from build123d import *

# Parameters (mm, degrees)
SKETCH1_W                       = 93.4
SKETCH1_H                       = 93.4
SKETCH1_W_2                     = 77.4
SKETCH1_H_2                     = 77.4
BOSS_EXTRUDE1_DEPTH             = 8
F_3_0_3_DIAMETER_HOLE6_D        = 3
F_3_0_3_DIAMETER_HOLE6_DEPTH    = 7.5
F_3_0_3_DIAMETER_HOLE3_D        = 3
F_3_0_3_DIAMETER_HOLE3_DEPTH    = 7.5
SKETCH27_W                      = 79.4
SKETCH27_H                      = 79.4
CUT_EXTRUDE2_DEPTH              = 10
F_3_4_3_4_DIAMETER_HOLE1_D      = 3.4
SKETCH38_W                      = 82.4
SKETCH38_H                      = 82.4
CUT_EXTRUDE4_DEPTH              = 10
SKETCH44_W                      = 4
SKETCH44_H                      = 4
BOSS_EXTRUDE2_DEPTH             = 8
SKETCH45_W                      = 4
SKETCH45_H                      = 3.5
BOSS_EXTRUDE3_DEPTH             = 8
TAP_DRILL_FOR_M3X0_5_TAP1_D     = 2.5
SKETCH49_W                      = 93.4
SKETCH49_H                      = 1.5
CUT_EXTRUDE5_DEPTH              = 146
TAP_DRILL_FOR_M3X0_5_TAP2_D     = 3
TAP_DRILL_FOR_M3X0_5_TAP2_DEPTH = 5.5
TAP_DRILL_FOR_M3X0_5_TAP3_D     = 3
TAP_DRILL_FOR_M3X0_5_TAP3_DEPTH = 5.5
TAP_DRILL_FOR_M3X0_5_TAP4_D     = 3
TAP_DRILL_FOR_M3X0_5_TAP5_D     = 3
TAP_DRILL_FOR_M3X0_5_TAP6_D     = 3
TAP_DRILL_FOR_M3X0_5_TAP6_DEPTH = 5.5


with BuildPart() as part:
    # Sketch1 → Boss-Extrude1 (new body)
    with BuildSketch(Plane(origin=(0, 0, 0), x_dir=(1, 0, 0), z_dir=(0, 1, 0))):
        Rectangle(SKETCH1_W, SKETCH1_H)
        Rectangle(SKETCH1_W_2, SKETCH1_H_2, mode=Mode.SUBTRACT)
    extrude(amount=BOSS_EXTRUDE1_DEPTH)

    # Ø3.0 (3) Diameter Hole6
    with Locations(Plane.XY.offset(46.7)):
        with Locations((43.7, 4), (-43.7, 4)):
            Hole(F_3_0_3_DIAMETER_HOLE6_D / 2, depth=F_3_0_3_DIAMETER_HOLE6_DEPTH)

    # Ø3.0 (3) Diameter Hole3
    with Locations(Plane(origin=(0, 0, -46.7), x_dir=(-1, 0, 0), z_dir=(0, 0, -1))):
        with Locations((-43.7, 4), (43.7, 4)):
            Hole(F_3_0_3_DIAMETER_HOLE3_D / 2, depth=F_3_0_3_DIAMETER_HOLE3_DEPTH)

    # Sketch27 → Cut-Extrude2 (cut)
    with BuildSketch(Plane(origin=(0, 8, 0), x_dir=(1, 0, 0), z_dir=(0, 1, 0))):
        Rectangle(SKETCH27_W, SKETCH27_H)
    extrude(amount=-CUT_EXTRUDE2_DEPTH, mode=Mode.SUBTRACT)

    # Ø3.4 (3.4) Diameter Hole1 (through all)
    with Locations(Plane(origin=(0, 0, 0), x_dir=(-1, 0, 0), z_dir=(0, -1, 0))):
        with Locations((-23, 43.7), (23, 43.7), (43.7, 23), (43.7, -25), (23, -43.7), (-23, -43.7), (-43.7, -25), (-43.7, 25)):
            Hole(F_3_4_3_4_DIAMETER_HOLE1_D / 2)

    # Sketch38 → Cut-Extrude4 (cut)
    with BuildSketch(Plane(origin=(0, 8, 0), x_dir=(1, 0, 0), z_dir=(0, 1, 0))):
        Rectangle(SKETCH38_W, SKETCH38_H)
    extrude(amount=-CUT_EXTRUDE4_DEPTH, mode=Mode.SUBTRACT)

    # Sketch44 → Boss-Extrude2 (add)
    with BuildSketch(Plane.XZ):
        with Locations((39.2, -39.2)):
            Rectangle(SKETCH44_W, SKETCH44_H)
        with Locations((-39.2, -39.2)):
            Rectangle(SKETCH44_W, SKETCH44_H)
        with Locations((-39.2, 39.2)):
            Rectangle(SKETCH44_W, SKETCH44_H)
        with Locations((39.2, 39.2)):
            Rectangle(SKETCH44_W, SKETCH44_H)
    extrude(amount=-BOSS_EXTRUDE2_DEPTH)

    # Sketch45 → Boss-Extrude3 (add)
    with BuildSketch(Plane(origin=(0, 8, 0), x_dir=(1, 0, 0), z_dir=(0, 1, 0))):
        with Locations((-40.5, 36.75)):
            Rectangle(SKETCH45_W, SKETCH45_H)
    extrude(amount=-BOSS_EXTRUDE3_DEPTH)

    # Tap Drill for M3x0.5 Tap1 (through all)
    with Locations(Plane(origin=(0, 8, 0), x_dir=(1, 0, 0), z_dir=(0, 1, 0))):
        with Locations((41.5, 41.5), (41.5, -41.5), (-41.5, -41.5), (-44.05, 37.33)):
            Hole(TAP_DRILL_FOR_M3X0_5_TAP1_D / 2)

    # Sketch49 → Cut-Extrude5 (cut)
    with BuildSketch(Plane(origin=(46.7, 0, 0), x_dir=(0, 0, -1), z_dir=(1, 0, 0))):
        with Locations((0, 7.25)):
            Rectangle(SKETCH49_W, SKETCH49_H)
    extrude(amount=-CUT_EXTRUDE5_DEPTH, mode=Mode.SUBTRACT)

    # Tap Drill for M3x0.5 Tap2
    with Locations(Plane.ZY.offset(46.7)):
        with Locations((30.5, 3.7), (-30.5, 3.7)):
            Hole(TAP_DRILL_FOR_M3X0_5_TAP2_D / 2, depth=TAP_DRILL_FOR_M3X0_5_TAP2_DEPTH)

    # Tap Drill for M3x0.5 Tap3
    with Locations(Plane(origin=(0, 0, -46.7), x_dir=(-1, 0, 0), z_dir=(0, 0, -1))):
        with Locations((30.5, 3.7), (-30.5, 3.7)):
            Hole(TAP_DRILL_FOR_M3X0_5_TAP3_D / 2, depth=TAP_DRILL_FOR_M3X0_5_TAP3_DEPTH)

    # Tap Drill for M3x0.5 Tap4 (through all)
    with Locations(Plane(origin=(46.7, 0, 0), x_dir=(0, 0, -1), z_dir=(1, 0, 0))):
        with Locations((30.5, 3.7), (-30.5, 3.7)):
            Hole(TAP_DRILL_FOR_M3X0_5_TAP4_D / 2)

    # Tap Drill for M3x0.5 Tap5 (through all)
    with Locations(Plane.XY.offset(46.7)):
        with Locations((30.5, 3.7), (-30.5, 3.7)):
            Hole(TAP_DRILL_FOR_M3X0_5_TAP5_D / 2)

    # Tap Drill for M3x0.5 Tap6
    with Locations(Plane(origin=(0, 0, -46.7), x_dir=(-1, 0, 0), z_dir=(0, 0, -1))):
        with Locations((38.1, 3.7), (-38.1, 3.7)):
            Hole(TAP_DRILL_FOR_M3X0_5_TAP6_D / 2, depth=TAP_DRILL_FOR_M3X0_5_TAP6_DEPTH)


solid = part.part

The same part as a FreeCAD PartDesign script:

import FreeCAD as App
import Part
import Sketcher


def add_polygon(sketch, points):
    """Adds a closed chain of lines whose ends are joined by coincident constraints."""
    first, n = sketch.GeometryCount, len(points)
    for a, b in zip(points, points[1:] + points[:1]):
        sketch.addGeometry(Part.LineSegment(App.Vector(*a, 0), App.Vector(*b, 0)), False)
    for i in range(n):
        sketch.addConstraint(Sketcher.Constraint("Coincident", first + i, 2, first + (i + 1) % n, 1))

doc = App.newDocument("Part")
body = doc.addObject("PartDesign::Body", "Body")

sketch1 = doc.addObject("Sketcher::SketchObject", "Sketch")
body.addObject(sketch1)
sketch1.AttachmentSupport = (doc.XZ_Plane, [""])
sketch1.MapMode = "FlatFace"
add_polygon(sketch1, [(-47, -47), (-47, 47), (47, 47), (47, -47)])
add_polygon(sketch1, [(39, 39), (-39, 39), (-39, -39), (39, -39)])
sketch1.addConstraint([
    Sketcher.Constraint("Vertical", 0),
    Sketcher.Constraint("Horizontal", 1),
    Sketcher.Constraint("Vertical", 2),
    Sketcher.Constraint("Horizontal", 3),
    Sketcher.Constraint("Horizontal", 4),
    Sketcher.Constraint("Vertical", 5),
    Sketcher.Constraint("Horizontal", 6),
    Sketcher.Constraint("Vertical", 7),
    Sketcher.Constraint("Symmetric", 0, 2, 2, 2, -1, 1),
    Sketcher.Constraint("Symmetric", 4, 2, 6, 2, -1, 1),
    Sketcher.Constraint("Equal", 3, 0),
    Sketcher.Constraint("Equal", 6, 5),
    Sketcher.Constraint("DistanceX", 1, 1, 1, 2, 93.4),
    Sketcher.Constraint("DistanceX", 4, 2, 4, 1, 77.4),
])
pad1 = doc.addObject("PartDesign::Pad", "Pad")
body.addObject(pad1)
pad1.Profile = sketch1
pad1.Length = 8
pad1.Reversed = True

sketch2 = doc.addObject("Sketcher::SketchObject", "Sketch001")
body.addObject(sketch2)
sketch2.AttachmentSupport = (doc.XY_Plane, [""])
sketch2.MapMode = "FlatFace"
sketch2.AttachmentOffset = App.Placement(App.Vector(0, 0, 46.7), App.Rotation())
sketch2.addGeometry([
    Part.Circle(App.Vector(43.7, 4, 0), App.Vector(0, 0, 1), 1.5),
    Part.Circle(App.Vector(-43.7, 4, 0), App.Vector(0, 0, 1), 1.5),
], False)
sketch2.addConstraint([
    Sketcher.Constraint("Equal", 0, 1),
    Sketcher.Constraint("Symmetric", 0, 3, 1, 3, -2),
    Sketcher.Constraint("Diameter", 0, 3.0),
    Sketcher.Constraint("DistanceY", -1, 1, 0, 3, 4.0),
    Sketcher.Constraint("DistanceX", -1, 1, 0, 3, 43.7),
])
doc.recompute()
hole = doc.addObject("PartDesign::Hole", "Hole")
body.addObject(hole)
hole.Profile = sketch2
hole.ThreadType = "None"
hole.Diameter = 3
hole.DepthType = "Dimension"
hole.Depth = 7.5
hole.DrillPoint = "Flat"

sketch3 = doc.addObject("Sketcher::SketchObject", "Sketch002")
body.addObject(sketch3)
sketch3.AttachmentSupport = (doc.XY_Plane, [""])
sketch3.MapMode = "FlatFace"
sketch3.AttachmentOffset = App.Placement(App.Vector(0, 0, -46.7), App.Rotation())
sketch3.addGeometry([
    Part.Circle(App.Vector(43.7, 4, 0), App.Vector(0, 0, 1), 1.5),
    Part.Circle(App.Vector(-43.7, 4, 0), App.Vector(0, 0, 1), 1.5),
], False)
sketch3.addConstraint([
    Sketcher.Constraint("Equal", 0, 1),
    Sketcher.Constraint("Symmetric", 0, 3, 1, 3, -2),
    Sketcher.Constraint("Diameter", 0, 3.0),
    Sketcher.Constraint("DistanceY", -1, 1, 0, 3, 4.0),
    Sketcher.Constraint("DistanceX", -1, 1, 0, 3, 43.7),
])
doc.recompute()
hole2 = doc.addObject("PartDesign::Hole", "Hole001")
body.addObject(hole2)
hole2.Profile = sketch3
hole2.ThreadType = "None"
hole2.Diameter = 3
hole2.DepthType = "Dimension"
hole2.Depth = 7.5
hole2.DrillPoint = "Flat"
hole2.Reversed = True

sketch4 = doc.addObject("Sketcher::SketchObject", "Sketch003")
body.addObject(sketch4)
sketch4.AttachmentSupport = (doc.XZ_Plane, [""])
sketch4.MapMode = "FlatFace"
sketch4.AttachmentOffset = App.Placement(App.Vector(0, 0, -8), App.Rotation())
add_polygon(sketch4, [(-40, -40), (-40, 40), (40, 40), (40, -40)])
sketch4.addConstraint([
    Sketcher.Constraint("Vertical", 0),
    Sketcher.Constraint("Horizontal", 1),
    Sketcher.Constraint("Vertical", 2),
    Sketcher.Constraint("Horizontal", 3),
    Sketcher.Constraint("Symmetric", 0, 2, 2, 2, -1, 1),
    Sketcher.Constraint("Equal", 3, 0),
    Sketcher.Constraint("DistanceX", 1, 1, 1, 2, 79.4),
])
pocket1 = doc.addObject("PartDesign::Pocket", "Pocket")
body.addObject(pocket1)
pocket1.Profile = sketch4
pocket1.Length = 10
pocket1.Reversed = True

sketch5 = doc.addObject("Sketcher::SketchObject", "Sketch004")
body.addObject(sketch5)
sketch5.AttachmentSupport = (doc.XZ_Plane, [""])
sketch5.MapMode = "FlatFace"
sketch5.addGeometry([
    Part.Circle(App.Vector(23, -43.7, 0), App.Vector(0, 0, 1), 1.7),
    Part.Circle(App.Vector(-23, -43.7, 0), App.Vector(0, 0, 1), 1.7),
    Part.Circle(App.Vector(-43.7, -23, 0), App.Vector(0, 0, 1), 1.7),
    Part.Circle(App.Vector(-43.7, 25, 0), App.Vector(0, 0, 1), 1.7),
    Part.Circle(App.Vector(-23, 43.7, 0), App.Vector(0, 0, 1), 1.7),
    Part.Circle(App.Vector(23, 43.7, 0), App.Vector(0, 0, 1), 1.7),
    Part.Circle(App.Vector(43.7, 25, 0), App.Vector(0, 0, 1), 1.7),
    Part.Circle(App.Vector(43.7, -25, 0), App.Vector(0, 0, 1), 1.7),
], False)
sketch5.addConstraint([
    Sketcher.Constraint("Equal", 0, 1),
    Sketcher.Constraint("Equal", 1, 2),
    Sketcher.Constraint("Equal", 2, 3),
    Sketcher.Constraint("Equal", 3, 4),
    Sketcher.Constraint("Equal", 4, 5),
    Sketcher.Constraint("Equal", 5, 6),
    Sketcher.Constraint("Equal", 6, 7),
    Sketcher.Constraint("Symmetric", 0, 3, 4, 3, -1, 1),
    Sketcher.Constraint("Symmetric", 1, 3, 5, 3, -1, 1),
    Sketcher.Constraint("Symmetric", 3, 3, 7, 3, -1, 1),
    Sketcher.Constraint("Symmetric", 0, 3, 1, 3, -2),
    Sketcher.Constraint("Symmetric", 3, 3, 6, 3, -2),
    Sketcher.Constraint("Vertical", 2, 3, 3, 3),
    Sketcher.Constraint("Diameter", 0, 3.4),
    Sketcher.Constraint("DistanceX", -1, 1, 0, 3, 23.0),
    Sketcher.Constraint("DistanceY", 2, 3, -1, 1, 23.0),
    Sketcher.Constraint("DistanceY", -1, 1, 3, 3, 25.0),
    Sketcher.Constraint("DistanceY", 0, 3, -1, 1, 43.7),
    Sketcher.Constraint("DistanceX", 2, 3, -1, 1, 43.7),
])
doc.recompute()
hole3 = doc.addObject("PartDesign::Hole", "Hole002")
body.addObject(hole3)
hole3.Profile = sketch5
hole3.ThreadType = "None"
hole3.Diameter = 3.4
hole3.DepthType = "ThroughAll"

sketch6 = doc.addObject("Sketcher::SketchObject", "Sketch005")
body.addObject(sketch6)
sketch6.AttachmentSupport = (doc.XZ_Plane, [""])
sketch6.MapMode = "FlatFace"
sketch6.AttachmentOffset = App.Placement(App.Vector(0, 0, -8), App.Rotation())
add_polygon(sketch6, [(-41, -41), (-41, 41), (41, 41), (41, -41)])
sketch6.addConstraint([
    Sketcher.Constraint("Vertical", 0),
    Sketcher.Constraint("Horizontal", 1),
    Sketcher.Constraint("Vertical", 2),
    Sketcher.Constraint("Horizontal", 3),
    Sketcher.Constraint("Symmetric", 0, 2, 2, 2, -1, 1),
    Sketcher.Constraint("Equal", 3, 0),
    Sketcher.Constraint("DistanceX", 1, 1, 1, 2, 82.4),
])
pocket2 = doc.addObject("PartDesign::Pocket", "Pocket001")
body.addObject(pocket2)
pocket2.Profile = sketch6
pocket2.Length = 10
pocket2.Reversed = True

sketch7 = doc.addObject("Sketcher::SketchObject", "Sketch006")
body.addObject(sketch7)
sketch7.AttachmentSupport = (doc.XZ_Plane, [""])
sketch7.MapMode = "FlatFace"
add_polygon(sketch7, [(37.2, -37.2), (37.2, -41.2), (41.2, -41.2), (41.2, -37.2)])
add_polygon(sketch7, [(-41.2, -37.2), (-41.2, -41.2), (-37.2, -41.2), (-37.2, -37.2)])
add_polygon(sketch7, [(-41.2, 41.2), (-41.2, 37.2), (-37.2, 37.2), (-37.2, 41.2)])
add_polygon(sketch7, [(37.2, 41.2), (37.2, 37.2), (41.2, 37.2), (41.2, 41.2)])
sketch7.addConstraint([
    Sketcher.Constraint("Vertical", 0),
    Sketcher.Constraint("Horizontal", 1),
    Sketcher.Constraint("Vertical", 2),
    Sketcher.Constraint("Horizontal", 3),
    Sketcher.Constraint("Vertical", 4),
    Sketcher.Constraint("Horizontal", 5),
    Sketcher.Constraint("Vertical", 6),
    Sketcher.Constraint("Horizontal", 7),
    Sketcher.Constraint("Vertical", 8),
    Sketcher.Constraint("Horizontal", 9),
    Sketcher.Constraint("Vertical", 10),
    Sketcher.Constraint("Horizontal", 11),
    Sketcher.Constraint("Vertical", 12),
    Sketcher.Constraint("Horizontal", 13),
    Sketcher.Constraint("Vertical", 14),
    Sketcher.Constraint("Horizontal", 15),
    Sketcher.Constraint("Symmetric", 2, 2, 8, 2, -1, 1),
    Sketcher.Constraint("Symmetric", 0, 2, 10, 2, -1, 1),
    Sketcher.Constraint("Symmetric", 6, 2, 12, 2, -1, 1),
    Sketcher.Constraint("Symmetric", 4, 2, 14, 2, -1, 1),
    Sketcher.Constraint("Symmetric", 1, 2, 4, 2, -2),
    Sketcher.Constraint("Symmetric", 3, 2, 6, 2, -2),
    Sketcher.Constraint("Equal", 15, 0),
    Sketcher.Constraint("DistanceX", 1, 1, 1, 2, 4.0),
    Sketcher.Constraint("DistanceX", -1, 1, 0, 2, 37.2),
    Sketcher.Constraint("DistanceY", 0, 2, -1, 1, 41.2),
])
pad2 = doc.addObject("PartDesign::Pad", "Pad001")
body.addObject(pad2)
pad2.Profile = sketch7
pad2.Length = 8
pad2.Reversed = True

sketch8 = doc.addObject("Sketcher::SketchObject", "Sketch007")
body.addObject(sketch8)
sketch8.AttachmentSupport = (doc.XZ_Plane, [""])
sketch8.MapMode = "FlatFace"
sketch8.AttachmentOffset = App.Placement(App.Vector(0, 0, -8), App.Rotation())
add_polygon(sketch8, [(-42.5, -38.5), (-42.5, -35), (-38.5, -35), (-38.5, -38.5)])
sketch8.addConstraint([
    Sketcher.Constraint("Vertical", 0),
    Sketcher.Constraint("Horizontal", 1),
    Sketcher.Constraint("Vertical", 2),
    Sketcher.Constraint("Horizontal", 3),
    Sketcher.Constraint("DistanceX", 1, 1, 1, 2, 4.0),
    Sketcher.Constraint("DistanceY", 0, 1, 0, 2, 3.5),
    Sketcher.Constraint("DistanceY", 0, 2, -1, 1, 35.0),
    Sketcher.Constraint("DistanceX", 0, 2, -1, 1, 42.5),
])
pad3 = doc.addObject("PartDesign::Pad", "Pad002")
body.addObject(pad3)
pad3.Profile = sketch8
pad3.Length = 8

sketch9 = doc.addObject("Sketcher::SketchObject", "Sketch008")
body.addObject(sketch9)
sketch9.AttachmentSupport = (doc.XZ_Plane, [""])
sketch9.MapMode = "FlatFace"
sketch9.AttachmentOffset = App.Placement(App.Vector(0, 0, -8), App.Rotation())
sketch9.addGeometry([
    Part.Circle(App.Vector(41.5, -41.5, 0), App.Vector(0, 0, 1), 1.2),
    Part.Circle(App.Vector(41.5, 41.5, 0), App.Vector(0, 0, 1), 1.2),
    Part.Circle(App.Vector(-41.5, 41.5, 0), App.Vector(0, 0, 1), 1.2),
    Part.Circle(App.Vector(-44, -37.3, 0), App.Vector(0, 0, 1), 1.2),
], False)
sketch9.addConstraint([
    Sketcher.Constraint("Equal", 0, 1),
    Sketcher.Constraint("Equal", 1, 2),
    Sketcher.Constraint("Equal", 2, 3),
    Sketcher.Constraint("Symmetric", 0, 3, 2, 3, -1, 1),
    Sketcher.Constraint("Symmetric", 1, 3, 2, 3, -2),
    Sketcher.Constraint("Diameter", 0, 2.5),
    Sketcher.Constraint("DistanceY", 0, 3, 1, 3, 83.0),
    Sketcher.Constraint("DistanceX", 2, 3, 1, 3, 83.0),
    Sketcher.Constraint("DistanceX", 3, 3, -1, 1, 44.05),
    Sketcher.Constraint("DistanceY", 3, 3, -1, 1, 37.33),
])
doc.recompute()
hole4 = doc.addObject("PartDesign::Hole", "Hole003")
body.addObject(hole4)
hole4.Profile = sketch9
hole4.ThreadType = "None"
hole4.Diameter = 2.5
hole4.DepthType = "ThroughAll"
hole4.Reversed = True

sketch10 = doc.addObject("Sketcher::SketchObject", "Sketch009")
body.addObject(sketch10)
sketch10.AttachmentSupport = (doc.YZ_Plane, [""])
sketch10.MapMode = "FlatFace"
sketch10.AttachmentOffset = App.Placement(App.Vector(0, 0, 46.7), App.Rotation())
add_polygon(sketch10, [(8, 46.7), (6.5, 46.7), (6.5, -46.7), (8, -46.7)])
sketch10.addConstraint([
    Sketcher.Constraint("Horizontal", 0),
    Sketcher.Constraint("Vertical", 1),
    Sketcher.Constraint("Horizontal", 2),
    Sketcher.Constraint("Vertical", 3),
    Sketcher.Constraint("DistanceX", 0, 2, 0, 1, 1.5),
    Sketcher.Constraint("DistanceY", 1, 2, 1, 1, 93.4),
    Sketcher.Constraint("DistanceX", -1, 1, 2, 2, 8.0),
    Sketcher.Constraint("DistanceY", -1, 1, 0, 2, 46.7),
])
pocket3 = doc.addObject("PartDesign::Pocket", "Pocket002")
body.addObject(pocket3)
pocket3.Profile = sketch10
pocket3.Length = 146

sketch11 = doc.addObject("Sketcher::SketchObject", "Sketch010")
body.addObject(sketch11)
sketch11.AttachmentSupport = (doc.YZ_Plane, [""])
sketch11.MapMode = "FlatFace"
sketch11.AttachmentOffset = App.Placement(App.Vector(0, 0, -46.7), App.Rotation())
sketch11.addGeometry([
    Part.Circle(App.Vector(3.7, 30.5, 0), App.Vector(0, 0, 1), 1.5),
    Part.Circle(App.Vector(3.7, -30.5, 0), App.Vector(0, 0, 1), 1.5),
], False)
sketch11.addConstraint([
    Sketcher.Constraint("Equal", 0, 1),
    Sketcher.Constraint("Symmetric", 0, 3, 1, 3, -1),
    Sketcher.Constraint("Diameter", 0, 3.0),
    Sketcher.Constraint("DistanceY", 1, 3, 0, 3, 61.0),
    Sketcher.Constraint("DistanceX", -1, 1, 0, 3, 3.7),
])
doc.recompute()
hole5 = doc.addObject("PartDesign::Hole", "Hole004")
body.addObject(hole5)
hole5.Profile = sketch11
hole5.ThreadType = "None"
hole5.Diameter = 3
hole5.DepthType = "Dimension"
hole5.Depth = 5.5
hole5.DrillPoint = "Flat"
hole5.Reversed = True

sketch12 = doc.addObject("Sketcher::SketchObject", "Sketch011")
body.addObject(sketch12)
sketch12.AttachmentSupport = (doc.XY_Plane, [""])
sketch12.MapMode = "FlatFace"
sketch12.AttachmentOffset = App.Placement(App.Vector(0, 0, -46.7), App.Rotation())
sketch12.addGeometry([
    Part.Circle(App.Vector(-30.5, 3.7, 0), App.Vector(0, 0, 1), 1.5),
    Part.Circle(App.Vector(30.5, 3.7, 0), App.Vector(0, 0, 1), 1.5),
], False)
sketch12.addConstraint([
    Sketcher.Constraint("Equal", 0, 1),
    Sketcher.Constraint("Symmetric", 0, 3, 1, 3, -2),
    Sketcher.Constraint("Diameter", 0, 3.0),
    Sketcher.Constraint("DistanceX", 0, 3, 1, 3, 61.0),
    Sketcher.Constraint("DistanceY", -1, 1, 0, 3, 3.7),
])
doc.recompute()
hole6 = doc.addObject("PartDesign::Hole", "Hole005")
body.addObject(hole6)
hole6.Profile = sketch12
hole6.ThreadType = "None"
hole6.Diameter = 3
hole6.DepthType = "Dimension"
hole6.Depth = 5.5
hole6.DrillPoint = "Flat"
hole6.Reversed = True

sketch13 = doc.addObject("Sketcher::SketchObject", "Sketch012")
body.addObject(sketch13)
sketch13.AttachmentSupport = (doc.YZ_Plane, [""])
sketch13.MapMode = "FlatFace"
sketch13.AttachmentOffset = App.Placement(App.Vector(0, 0, 46.7), App.Rotation())
sketch13.addGeometry([
    Part.Circle(App.Vector(3.7, -30.5, 0), App.Vector(0, 0, 1), 1.5),
    Part.Circle(App.Vector(3.7, 30.5, 0), App.Vector(0, 0, 1), 1.5),
], False)
sketch13.addConstraint([
    Sketcher.Constraint("Equal", 0, 1),
    Sketcher.Constraint("Symmetric", 0, 3, 1, 3, -1),
    Sketcher.Constraint("Diameter", 0, 3.0),
    Sketcher.Constraint("DistanceY", 0, 3, 1, 3, 61.0),
    Sketcher.Constraint("DistanceX", -1, 1, 0, 3, 3.7),
])
doc.recompute()
hole7 = doc.addObject("PartDesign::Hole", "Hole006")
body.addObject(hole7)
hole7.Profile = sketch13
hole7.ThreadType = "None"
hole7.Diameter = 3
hole7.DepthType = "ThroughAll"

sketch14 = doc.addObject("Sketcher::SketchObject", "Sketch013")
body.addObject(sketch14)
sketch14.AttachmentSupport = (doc.XY_Plane, [""])
sketch14.MapMode = "FlatFace"
sketch14.AttachmentOffset = App.Placement(App.Vector(0, 0, 46.7), App.Rotation())
sketch14.addGeometry([
    Part.Circle(App.Vector(30.5, 3.7, 0), App.Vector(0, 0, 1), 1.5),
    Part.Circle(App.Vector(-30.5, 3.7, 0), App.Vector(0, 0, 1), 1.5),
], False)
sketch14.addConstraint([
    Sketcher.Constraint("Equal", 0, 1),
    Sketcher.Constraint("Symmetric", 0, 3, 1, 3, -2),
    Sketcher.Constraint("Diameter", 0, 3.0),
    Sketcher.Constraint("DistanceX", 1, 3, 0, 3, 61.0),
    Sketcher.Constraint("DistanceY", -1, 1, 0, 3, 3.7),
])
doc.recompute()
hole8 = doc.addObject("PartDesign::Hole", "Hole007")
body.addObject(hole8)
hole8.Profile = sketch14
hole8.ThreadType = "None"
hole8.Diameter = 3
hole8.DepthType = "ThroughAll"

sketch15 = doc.addObject("Sketcher::SketchObject", "Sketch014")
body.addObject(sketch15)
sketch15.AttachmentSupport = (doc.XY_Plane, [""])
sketch15.MapMode = "FlatFace"
sketch15.AttachmentOffset = App.Placement(App.Vector(0, 0, -46.7), App.Rotation())
sketch15.addGeometry([
    Part.Circle(App.Vector(-38.1, 3.7, 0), App.Vector(0, 0, 1), 1.5),
    Part.Circle(App.Vector(38.1, 3.7, 0), App.Vector(0, 0, 1), 1.5),
], False)
sketch15.addConstraint([
    Sketcher.Constraint("Equal", 0, 1),
    Sketcher.Constraint("Symmetric", 0, 3, 1, 3, -2),
    Sketcher.Constraint("Diameter", 0, 3.0),
    Sketcher.Constraint("DistanceX", 0, 3, -1, 1, 38.1),
    Sketcher.Constraint("DistanceY", -1, 1, 0, 3, 3.7),
])
doc.recompute()
hole9 = doc.addObject("PartDesign::Hole", "Hole008")
body.addObject(hole9)
hole9.Profile = sketch15
hole9.ThreadType = "None"
hole9.Diameter = 3
hole9.DepthType = "Dimension"
hole9.Depth = 5.5
hole9.DrillPoint = "Flat"
hole9.Reversed = True

doc.recompute()
